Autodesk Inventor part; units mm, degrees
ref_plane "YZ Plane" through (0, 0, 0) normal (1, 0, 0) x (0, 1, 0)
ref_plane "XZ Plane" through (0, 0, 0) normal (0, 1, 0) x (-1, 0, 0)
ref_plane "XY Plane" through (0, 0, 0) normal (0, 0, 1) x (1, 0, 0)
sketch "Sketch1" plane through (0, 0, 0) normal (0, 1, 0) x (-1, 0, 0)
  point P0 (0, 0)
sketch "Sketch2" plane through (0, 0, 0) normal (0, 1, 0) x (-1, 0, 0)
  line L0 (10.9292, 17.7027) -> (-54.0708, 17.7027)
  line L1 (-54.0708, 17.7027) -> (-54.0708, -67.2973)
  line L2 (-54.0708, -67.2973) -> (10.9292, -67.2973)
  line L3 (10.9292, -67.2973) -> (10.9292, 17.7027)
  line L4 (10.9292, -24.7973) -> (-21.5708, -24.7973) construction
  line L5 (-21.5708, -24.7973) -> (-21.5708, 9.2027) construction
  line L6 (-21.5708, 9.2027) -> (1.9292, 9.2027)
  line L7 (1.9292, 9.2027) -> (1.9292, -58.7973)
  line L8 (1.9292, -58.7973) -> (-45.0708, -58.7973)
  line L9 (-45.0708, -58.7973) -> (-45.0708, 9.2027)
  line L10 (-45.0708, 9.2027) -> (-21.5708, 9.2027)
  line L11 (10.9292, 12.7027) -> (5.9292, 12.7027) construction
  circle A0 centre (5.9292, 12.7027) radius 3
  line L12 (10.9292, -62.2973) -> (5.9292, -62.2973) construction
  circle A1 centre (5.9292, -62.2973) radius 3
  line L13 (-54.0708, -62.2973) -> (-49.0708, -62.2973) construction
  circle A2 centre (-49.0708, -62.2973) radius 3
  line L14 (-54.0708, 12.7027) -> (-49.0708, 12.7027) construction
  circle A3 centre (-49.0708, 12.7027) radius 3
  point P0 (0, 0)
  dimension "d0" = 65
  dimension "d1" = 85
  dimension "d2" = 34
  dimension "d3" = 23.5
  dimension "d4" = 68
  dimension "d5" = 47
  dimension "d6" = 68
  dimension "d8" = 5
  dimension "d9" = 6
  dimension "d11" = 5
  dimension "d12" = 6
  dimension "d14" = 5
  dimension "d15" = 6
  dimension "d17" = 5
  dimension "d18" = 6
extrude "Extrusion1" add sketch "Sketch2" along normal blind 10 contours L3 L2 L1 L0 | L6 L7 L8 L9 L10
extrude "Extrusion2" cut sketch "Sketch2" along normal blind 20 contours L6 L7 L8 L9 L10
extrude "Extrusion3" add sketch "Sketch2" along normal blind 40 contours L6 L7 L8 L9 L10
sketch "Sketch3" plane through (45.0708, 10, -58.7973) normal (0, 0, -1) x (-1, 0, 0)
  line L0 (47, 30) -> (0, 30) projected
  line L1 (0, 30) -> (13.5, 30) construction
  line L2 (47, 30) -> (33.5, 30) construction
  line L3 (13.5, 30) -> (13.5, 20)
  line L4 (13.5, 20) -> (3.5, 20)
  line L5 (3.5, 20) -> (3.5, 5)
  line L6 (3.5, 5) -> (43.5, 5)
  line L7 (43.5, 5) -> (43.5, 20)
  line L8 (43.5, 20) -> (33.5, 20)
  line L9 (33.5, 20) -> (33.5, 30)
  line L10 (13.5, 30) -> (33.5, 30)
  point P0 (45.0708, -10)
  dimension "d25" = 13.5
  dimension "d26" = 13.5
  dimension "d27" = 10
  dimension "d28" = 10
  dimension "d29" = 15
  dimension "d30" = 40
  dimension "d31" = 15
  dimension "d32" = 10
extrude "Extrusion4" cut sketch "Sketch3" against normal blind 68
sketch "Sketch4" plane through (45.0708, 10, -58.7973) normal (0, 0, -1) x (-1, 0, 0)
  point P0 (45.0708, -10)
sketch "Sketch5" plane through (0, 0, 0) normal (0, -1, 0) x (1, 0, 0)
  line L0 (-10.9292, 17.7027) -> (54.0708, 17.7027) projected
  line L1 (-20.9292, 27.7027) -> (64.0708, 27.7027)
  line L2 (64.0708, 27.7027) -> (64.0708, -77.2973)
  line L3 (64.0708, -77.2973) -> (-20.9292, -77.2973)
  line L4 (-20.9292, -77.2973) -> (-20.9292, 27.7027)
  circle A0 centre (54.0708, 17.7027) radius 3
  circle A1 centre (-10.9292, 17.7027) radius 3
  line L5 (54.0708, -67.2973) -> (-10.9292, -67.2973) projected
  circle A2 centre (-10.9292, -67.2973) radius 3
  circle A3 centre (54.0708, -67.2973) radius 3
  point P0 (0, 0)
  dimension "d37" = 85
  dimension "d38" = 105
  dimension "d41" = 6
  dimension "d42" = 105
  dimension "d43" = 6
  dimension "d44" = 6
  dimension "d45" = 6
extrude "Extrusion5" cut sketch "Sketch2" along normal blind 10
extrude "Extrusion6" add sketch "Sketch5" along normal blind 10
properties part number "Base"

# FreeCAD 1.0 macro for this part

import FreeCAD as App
import Part
import Sketcher
from FreeCAD import Vector


def add_polygon(sketch, points):
    """Adds a closed chain of lines whose ends are joined by coincident constraints."""
    first, n = sketch.GeometryCount, len(points)
    for a, b in zip(points, points[1:] + points[:1]):
        sketch.addGeometry(Part.LineSegment(App.Vector(*a, 0), App.Vector(*b, 0)), False)
    for i in range(n):
        sketch.addConstraint(Sketcher.Constraint("Coincident", first + i, 2, first + (i + 1) % n, 1))

doc = App.newDocument("Part")
params = doc.addObject("Spreadsheet::Sheet", "Params")
for row, (alias, value) in enumerate([
    ("sketch1_diameter", "6 mm"),
    ("sketch1_width", "65 mm"),
    ("sketch1_height", "85 mm"),
    ("pad1_length", "10 mm"),
    ("sketch2_width", "47 mm"),
    ("sketch2_height", "68 mm"),
    ("pocket1_length", "20 mm"),
    ("sketch3_width", "47 mm"),
    ("sketch3_height", "68 mm"),
    ("pad2_length", "40 mm"),
    ("sketch4_width", "10 mm"),
    ("sketch4_width2", "40 mm"),
    ("sketch4_height", "15 mm"),
    ("pocket2_length", "68 mm"),
    ("sketch5_diameter", "6 mm"),
    ("sketch5_width", "65 mm"),
    ("sketch5_width2", "47 mm"),
    ("sketch5_height", "85 mm"),
    ("sketch5_height2", "68 mm"),
    ("pocket3_length", "10 mm"),
    ("sketch6_diameter", "6 mm"),
    ("sketch6_width", "85 mm"),
    ("sketch6_height", "105 mm"),
    ("pad3_length", "10 mm"),
], start=1):
    params.set(f"A{row}", alias)
    params.set(f"B{row}", "=" + value)
    params.setAlias(f"B{row}", alias)

body = doc.addObject("PartDesign::Body", "Body")

sketch1 = body.newObject("Sketcher::SketchObject", "Sketch")
sketch1.AttachmentSupport = (doc.getObject("XZ_Plane"), [""])
sketch1.MapMode = "FlatFace"
add_polygon(sketch1, [(-10.9, -67.3), (-10.9, 17.7), (54.1, 17.7), (54.1, -67.3)])
sketch1.addGeometry(Part.Circle(Vector(49.1, -62.3, 0), Vector(0, 0, 1), 3), False)
sketch1.addGeometry(Part.Circle(Vector(-5.9, -62.3, 0), Vector(0, 0, 1), 3), False)
sketch1.addGeometry(Part.Circle(Vector(49.1, 12.7, 0), Vector(0, 0, 1), 3), False)
sketch1.addGeometry(Part.Circle(Vector(-5.9, 12.7, 0), Vector(0, 0, 1), 3), False)
sketch1.addConstraint([
    Sketcher.Constraint("Vertical", 0),
    Sketcher.Constraint("Horizontal", 1),
    Sketcher.Constraint("Vertical", 2),
    Sketcher.Constraint("Horizontal", 3),
    Sketcher.Constraint("Equal", 4, 5),
    Sketcher.Constraint("Equal", 5, 6),
    Sketcher.Constraint("Equal", 6, 7),
    Sketcher.Constraint("Horizontal", 4, 3, 5, 3),
    Sketcher.Constraint("Horizontal", 6, 3, 7, 3),
    Sketcher.Constraint("Vertical", 4, 3, 6, 3),
    Sketcher.Constraint("Vertical", 5, 3, 7, 3),
    Sketcher.Constraint("Diameter", 4, 6.0),
    Sketcher.Constraint("DistanceX", 1, 1, 1, 2, 65.0),
    Sketcher.Constraint("DistanceY", 0, 1, 0, 2, 85.0),
    Sketcher.Constraint("DistanceX", 0, 2, 7, 3, 5.0),
    Sketcher.Constraint("DistanceY", 7, 3, 0, 2, 5.0),
    Sketcher.Constraint("DistanceX", 6, 3, 1, 2, 5.0),
    Sketcher.Constraint("DistanceY", 2, 2, 4, 3, 5.0),
    Sketcher.Constraint("DistanceX", -1, 1, 4, 3, 49.0708),
    Sketcher.Constraint("DistanceY", 4, 3, -1, 1, 62.2973),
])
sketch1.setExpression("Constraints[15]", "Params.sketch1_diameter")
sketch1.setExpression("Constraints[16]", "Params.sketch1_width")
sketch1.setExpression("Constraints[17]", "Params.sketch1_height")
pad1 = body.newObject("PartDesign::Pad", "Pad")
pad1.Profile = sketch1
pad1.setExpression("Length", "Params.pad1_length")
pad1.Reversed = True

sketch2 = body.newObject("Sketcher::SketchObject", "Sketch001")
sketch2.AttachmentSupport = (doc.getObject("XZ_Plane"), [""])
sketch2.MapMode = "FlatFace"
add_polygon(sketch2, [(-2, 9), (45, 9), (45, -59), (-2, -59)])
sketch2.addConstraint([
    Sketcher.Constraint("Horizontal", 0),
    Sketcher.Constraint("Vertical", 1),
    Sketcher.Constraint("Horizontal", 2),
    Sketcher.Constraint("Vertical", 3),
    Sketcher.Constraint("DistanceX", 0, 1, 0, 2, 47.0),
    Sketcher.Constraint("DistanceY", 1, 2, 1, 1, 68.0),
    Sketcher.Constraint("DistanceX", -1, 1, 0, 2, 45.0708),
    Sketcher.Constraint("DistanceY", -1, 1, 0, 2, 9.2027),
])
sketch2.setExpression("Constraints[8]", "Params.sketch2_width")
sketch2.setExpression("Constraints[9]", "Params.sketch2_height")
pocket1 = body.newObject("PartDesign::Pocket", "Pocket")
pocket1.Profile = sketch2
pocket1.setExpression("Length", "Params.pocket1_length")

sketch3 = body.newObject("Sketcher::SketchObject", "Sketch002")
sketch3.AttachmentSupport = (doc.getObject("XZ_Plane"), [""])
sketch3.MapMode = "FlatFace"
add_polygon(sketch3, [(-2, 9), (45, 9), (45, -59), (-2, -59)])
sketch3.addConstraint([
    Sketcher.Constraint("Horizontal", 0),
    Sketcher.Constraint("Vertical", 1),
    Sketcher.Constraint("Horizontal", 2),
    Sketcher.Constraint("Vertical", 3),
    Sketcher.Constraint("DistanceX", 0, 1, 0, 2, 47.0),
    Sketcher.Constraint("DistanceY", 1, 2, 1, 1, 68.0),
    Sketcher.Constraint("DistanceX", -1, 1, 0, 2, 45.0708),
    Sketcher.Constraint("DistanceY", -1, 1, 0, 2, 9.2027),
])
sketch3.setExpression("Constraints[8]", "Params.sketch3_width")
sketch3.setExpression("Constraints[9]", "Params.sketch3_height")
pad2 = body.newObject("PartDesign::Pad", "Pad001")
pad2.Profile = sketch3
pad2.setExpression("Length", "Params.pad2_length")
pad2.Reversed = True

sketch4 = body.newObject("Sketcher::SketchObject", "Sketch003")
sketch4.AttachmentSupport = (doc.getObject("XY_Plane"), [""])
sketch4.MapMode = "FlatFace"
sketch4.AttachmentOffset = App.Placement(Vector(0, 0, -58.7973), App.Rotation())
add_polygon(sketch4, [(12, 30), (12, 40), (32, 40), (32, 30), (42, 30), (42, 15), (2, 15), (2, 30)])
sketch4.addConstraint([
    Sketcher.Constraint("Vertical", 0),
    Sketcher.Constraint("Horizontal", 1),
    Sketcher.Constraint("Vertical", 2),
    Sketcher.Constraint("Horizontal", 3),
    Sketcher.Constraint("Vertical", 4),
    Sketcher.Constraint("Horizontal", 5),
    Sketcher.Constraint("Vertical", 6),
    Sketcher.Constraint("Horizontal", 7),
    Sketcher.Constraint("Horizontal", 3, 2, 6, 2),
    Sketcher.Constraint("Equal", 3, 7),
    Sketcher.Constraint("Equal", 7, 0),
    Sketcher.Constraint("DistanceX", 3, 1, 3, 2, 10.0),
    Sketcher.Constraint("DistanceX", 5, 2, 5, 1, 40.0),
    Sketcher.Constraint("DistanceY", 4, 2, 4, 1, 15.0),
    Sketcher.Constraint("DistanceY", -1, 1, 0, 2, 40.0),
    Sketcher.Constraint("DistanceX", -1, 1, 0, 2, 11.5708),
])
sketch4.setExpression("Constraints[19]", "Params.sketch4_width")
sketch4.setExpression("Constraints[20]", "Params.sketch4_width2")
sketch4.setExpression("Constraints[21]", "Params.sketch4_height")
pocket2 = body.newObject("PartDesign::Pocket", "Pocket001")
pocket2.Profile = sketch4
pocket2.setExpression("Length", "Params.pocket2_length")
pocket2.Reversed = True

sketch5 = body.newObject("Sketcher::SketchObject", "Sketch004")
sketch5.AttachmentSupport = (doc.getObject("XZ_Plane"), [""])
sketch5.MapMode = "FlatFace"
add_polygon(sketch5, [(-10.9, -67.3), (-10.9, 17.7), (54.1, 17.7), (54.1, -67.3)])
sketch5.addGeometry(Part.Circle(Vector(49.1, -62.3, 0), Vector(0, 0, 1), 3), False)
sketch5.addGeometry(Part.Circle(Vector(-5.9, -62.3, 0), Vector(0, 0, 1), 3), False)
sketch5.addGeometry(Part.Circle(Vector(49.1, 12.7, 0), Vector(0, 0, 1), 3), False)
add_polygon(sketch5, [(45.1, 9.2), (-1.9, 9.2), (-1.9, -58.8), (45.1, -58.8)])
sketch5.addGeometry(Part.Circle(Vector(-5.9, 12.7, 0), Vector(0, 0, 1), 3), False)
sketch5.addConstraint([
    Sketcher.Constraint("Vertical", 0),
    Sketcher.Constraint("Horizontal", 1),
    Sketcher.Constraint("Vertical", 2),
    Sketcher.Constraint("Horizontal", 3),
    Sketcher.Constraint("Horizontal", 7),
    Sketcher.Constraint("Vertical", 8),
    Sketcher.Constraint("Horizontal", 9),
    Sketcher.Constraint("Vertical", 10),
    Sketcher.Constraint("Equal", 4, 5),
    Sketcher.Constraint("Equal", 5, 6),
    Sketcher.Constraint("Equal", 6, 11),
    Sketcher.Constraint("Horizontal", 4, 3, 5, 3),
    Sketcher.Constraint("Horizontal", 6, 3, 11, 3),
    Sketcher.Constraint("Vertical", 4, 3, 6, 3),
    Sketcher.Constraint("Vertical", 5, 3, 11, 3),
    Sketcher.Constraint("Diameter", 4, 6.0),
    Sketcher.Constraint("DistanceX", 1, 1, 1, 2, 65.0),
    Sketcher.Constraint("DistanceX", 7, 2, 7, 1, 47.0),
    Sketcher.Constraint("DistanceY", 0, 1, 0, 2, 85.0),
    Sketcher.Constraint("DistanceY", 8, 2, 8, 1, 68.0),
    Sketcher.Constraint("DistanceX", 0, 2, 11, 3, 5.0),
    Sketcher.Constraint("DistanceY", 11, 3, 0, 2, 5.0),
    Sketcher.Constraint("DistanceX", 6, 3, 1, 2, 5.0),
    Sketcher.Constraint("DistanceY", 2, 2, 4, 3, 5.0),
    Sketcher.Constraint("DistanceX", 11, 3, 7, 2, 4.0),
    Sketcher.Constraint("DistanceY", 7, 2, 11, 3, 3.5),
    Sketcher.Constraint("DistanceX", -1, 1, 4, 3, 49.0708),
    Sketcher.Constraint("DistanceY", 4, 3, -1, 1, 62.2973),
])
sketch5.setExpression("Constraints[23]", "Params.sketch5_diameter")
sketch5.setExpression("Constraints[24]", "Params.sketch5_width")
sketch5.setExpression("Constraints[25]", "Params.sketch5_width2")
sketch5.setExpression("Constraints[26]", "Params.sketch5_height")
sketch5.setExpression("Constraints[27]", "Params.sketch5_height2")
pocket3 = body.newObject("PartDesign::Pocket", "Pocket002")
pocket3.Profile = sketch5
pocket3.setExpression("Length", "Params.pocket3_length")

sketch6 = body.newObject("Sketcher::SketchObject", "Sketch005")
sketch6.AttachmentSupport = (doc.getObject("XZ_Plane"), [""])
sketch6.MapMode = "FlatFace"
add_polygon(sketch6, [(64.1, 27.7), (-20.9, 27.7), (-20.9, -77.3), (64.1, -77.3)])
sketch6.addGeometry(Part.Circle(Vector(-10.9, -67.3, 0), Vector(0, 0, 1), 3), False)
sketch6.addGeometry(Part.Circle(Vector(54.1, -67.3, 0), Vector(0, 0, 1), 3), False)
sketch6.addGeometry(Part.Circle(Vector(-10.9, 17.7, 0), Vector(0, 0, 1), 3), False)
sketch6.addGeometry(Part.Circle(Vector(54.1, 17.7, 0), Vector(0, 0, 1), 3), False)
sketch6.addConstraint([
    Sketcher.Constraint("Horizontal", 0),
    Sketcher.Constraint("Vertical", 1),
    Sketcher.Constraint("Horizontal", 2),
    Sketcher.Constraint("Vertical", 3),
    Sketcher.Constraint("Equal", 4, 5),
    Sketcher.Constraint("Equal", 5, 6),
    Sketcher.Constraint("Equal", 6, 7),
    Sketcher.Constraint("Horizontal", 4, 3, 5, 3),
    Sketcher.Constraint("Horizontal", 6, 3, 7, 3),
    Sketcher.Constraint("Vertical", 4, 3, 6, 3),
    Sketcher.Constraint("Vertical", 5, 3, 7, 3),
    Sketcher.Constraint("Diameter", 4, 6.0),
    Sketcher.Constraint("DistanceX", 0, 2, 0, 1, 85.0),
    Sketcher.Constraint("DistanceY", 1, 2, 1, 1, 105.0),
    Sketcher.Constraint("DistanceY", 4, 3, 6, 3, 85.0),
    Sketcher.Constraint("DistanceX", 4, 3, 5, 3, 65.0),
    Sketcher.Constraint("DistanceX", 0, 2, 6, 3, 10.0),
    Sketcher.Constraint("DistanceY", 6, 3, 0, 2, 10.0),
    Sketcher.Constraint("DistanceX", 4, 3, -1, 1, 10.9292),
    Sketcher.Constraint("DistanceY", 4, 3, -1, 1, 67.2973),
])
sketch6.setExpression("Constraints[15]", "Params.sketch6_diameter")
sketch6.setExpression("Constraints[16]", "Params.sketch6_width")
sketch6.setExpression("Constraints[17]", "Params.sketch6_height")
pad3 = body.newObject("PartDesign::Pad", "Pad002")
pad3.Profile = sketch6
pad3.setExpression("Length", "Params.pad3_length")

doc.recompute()
